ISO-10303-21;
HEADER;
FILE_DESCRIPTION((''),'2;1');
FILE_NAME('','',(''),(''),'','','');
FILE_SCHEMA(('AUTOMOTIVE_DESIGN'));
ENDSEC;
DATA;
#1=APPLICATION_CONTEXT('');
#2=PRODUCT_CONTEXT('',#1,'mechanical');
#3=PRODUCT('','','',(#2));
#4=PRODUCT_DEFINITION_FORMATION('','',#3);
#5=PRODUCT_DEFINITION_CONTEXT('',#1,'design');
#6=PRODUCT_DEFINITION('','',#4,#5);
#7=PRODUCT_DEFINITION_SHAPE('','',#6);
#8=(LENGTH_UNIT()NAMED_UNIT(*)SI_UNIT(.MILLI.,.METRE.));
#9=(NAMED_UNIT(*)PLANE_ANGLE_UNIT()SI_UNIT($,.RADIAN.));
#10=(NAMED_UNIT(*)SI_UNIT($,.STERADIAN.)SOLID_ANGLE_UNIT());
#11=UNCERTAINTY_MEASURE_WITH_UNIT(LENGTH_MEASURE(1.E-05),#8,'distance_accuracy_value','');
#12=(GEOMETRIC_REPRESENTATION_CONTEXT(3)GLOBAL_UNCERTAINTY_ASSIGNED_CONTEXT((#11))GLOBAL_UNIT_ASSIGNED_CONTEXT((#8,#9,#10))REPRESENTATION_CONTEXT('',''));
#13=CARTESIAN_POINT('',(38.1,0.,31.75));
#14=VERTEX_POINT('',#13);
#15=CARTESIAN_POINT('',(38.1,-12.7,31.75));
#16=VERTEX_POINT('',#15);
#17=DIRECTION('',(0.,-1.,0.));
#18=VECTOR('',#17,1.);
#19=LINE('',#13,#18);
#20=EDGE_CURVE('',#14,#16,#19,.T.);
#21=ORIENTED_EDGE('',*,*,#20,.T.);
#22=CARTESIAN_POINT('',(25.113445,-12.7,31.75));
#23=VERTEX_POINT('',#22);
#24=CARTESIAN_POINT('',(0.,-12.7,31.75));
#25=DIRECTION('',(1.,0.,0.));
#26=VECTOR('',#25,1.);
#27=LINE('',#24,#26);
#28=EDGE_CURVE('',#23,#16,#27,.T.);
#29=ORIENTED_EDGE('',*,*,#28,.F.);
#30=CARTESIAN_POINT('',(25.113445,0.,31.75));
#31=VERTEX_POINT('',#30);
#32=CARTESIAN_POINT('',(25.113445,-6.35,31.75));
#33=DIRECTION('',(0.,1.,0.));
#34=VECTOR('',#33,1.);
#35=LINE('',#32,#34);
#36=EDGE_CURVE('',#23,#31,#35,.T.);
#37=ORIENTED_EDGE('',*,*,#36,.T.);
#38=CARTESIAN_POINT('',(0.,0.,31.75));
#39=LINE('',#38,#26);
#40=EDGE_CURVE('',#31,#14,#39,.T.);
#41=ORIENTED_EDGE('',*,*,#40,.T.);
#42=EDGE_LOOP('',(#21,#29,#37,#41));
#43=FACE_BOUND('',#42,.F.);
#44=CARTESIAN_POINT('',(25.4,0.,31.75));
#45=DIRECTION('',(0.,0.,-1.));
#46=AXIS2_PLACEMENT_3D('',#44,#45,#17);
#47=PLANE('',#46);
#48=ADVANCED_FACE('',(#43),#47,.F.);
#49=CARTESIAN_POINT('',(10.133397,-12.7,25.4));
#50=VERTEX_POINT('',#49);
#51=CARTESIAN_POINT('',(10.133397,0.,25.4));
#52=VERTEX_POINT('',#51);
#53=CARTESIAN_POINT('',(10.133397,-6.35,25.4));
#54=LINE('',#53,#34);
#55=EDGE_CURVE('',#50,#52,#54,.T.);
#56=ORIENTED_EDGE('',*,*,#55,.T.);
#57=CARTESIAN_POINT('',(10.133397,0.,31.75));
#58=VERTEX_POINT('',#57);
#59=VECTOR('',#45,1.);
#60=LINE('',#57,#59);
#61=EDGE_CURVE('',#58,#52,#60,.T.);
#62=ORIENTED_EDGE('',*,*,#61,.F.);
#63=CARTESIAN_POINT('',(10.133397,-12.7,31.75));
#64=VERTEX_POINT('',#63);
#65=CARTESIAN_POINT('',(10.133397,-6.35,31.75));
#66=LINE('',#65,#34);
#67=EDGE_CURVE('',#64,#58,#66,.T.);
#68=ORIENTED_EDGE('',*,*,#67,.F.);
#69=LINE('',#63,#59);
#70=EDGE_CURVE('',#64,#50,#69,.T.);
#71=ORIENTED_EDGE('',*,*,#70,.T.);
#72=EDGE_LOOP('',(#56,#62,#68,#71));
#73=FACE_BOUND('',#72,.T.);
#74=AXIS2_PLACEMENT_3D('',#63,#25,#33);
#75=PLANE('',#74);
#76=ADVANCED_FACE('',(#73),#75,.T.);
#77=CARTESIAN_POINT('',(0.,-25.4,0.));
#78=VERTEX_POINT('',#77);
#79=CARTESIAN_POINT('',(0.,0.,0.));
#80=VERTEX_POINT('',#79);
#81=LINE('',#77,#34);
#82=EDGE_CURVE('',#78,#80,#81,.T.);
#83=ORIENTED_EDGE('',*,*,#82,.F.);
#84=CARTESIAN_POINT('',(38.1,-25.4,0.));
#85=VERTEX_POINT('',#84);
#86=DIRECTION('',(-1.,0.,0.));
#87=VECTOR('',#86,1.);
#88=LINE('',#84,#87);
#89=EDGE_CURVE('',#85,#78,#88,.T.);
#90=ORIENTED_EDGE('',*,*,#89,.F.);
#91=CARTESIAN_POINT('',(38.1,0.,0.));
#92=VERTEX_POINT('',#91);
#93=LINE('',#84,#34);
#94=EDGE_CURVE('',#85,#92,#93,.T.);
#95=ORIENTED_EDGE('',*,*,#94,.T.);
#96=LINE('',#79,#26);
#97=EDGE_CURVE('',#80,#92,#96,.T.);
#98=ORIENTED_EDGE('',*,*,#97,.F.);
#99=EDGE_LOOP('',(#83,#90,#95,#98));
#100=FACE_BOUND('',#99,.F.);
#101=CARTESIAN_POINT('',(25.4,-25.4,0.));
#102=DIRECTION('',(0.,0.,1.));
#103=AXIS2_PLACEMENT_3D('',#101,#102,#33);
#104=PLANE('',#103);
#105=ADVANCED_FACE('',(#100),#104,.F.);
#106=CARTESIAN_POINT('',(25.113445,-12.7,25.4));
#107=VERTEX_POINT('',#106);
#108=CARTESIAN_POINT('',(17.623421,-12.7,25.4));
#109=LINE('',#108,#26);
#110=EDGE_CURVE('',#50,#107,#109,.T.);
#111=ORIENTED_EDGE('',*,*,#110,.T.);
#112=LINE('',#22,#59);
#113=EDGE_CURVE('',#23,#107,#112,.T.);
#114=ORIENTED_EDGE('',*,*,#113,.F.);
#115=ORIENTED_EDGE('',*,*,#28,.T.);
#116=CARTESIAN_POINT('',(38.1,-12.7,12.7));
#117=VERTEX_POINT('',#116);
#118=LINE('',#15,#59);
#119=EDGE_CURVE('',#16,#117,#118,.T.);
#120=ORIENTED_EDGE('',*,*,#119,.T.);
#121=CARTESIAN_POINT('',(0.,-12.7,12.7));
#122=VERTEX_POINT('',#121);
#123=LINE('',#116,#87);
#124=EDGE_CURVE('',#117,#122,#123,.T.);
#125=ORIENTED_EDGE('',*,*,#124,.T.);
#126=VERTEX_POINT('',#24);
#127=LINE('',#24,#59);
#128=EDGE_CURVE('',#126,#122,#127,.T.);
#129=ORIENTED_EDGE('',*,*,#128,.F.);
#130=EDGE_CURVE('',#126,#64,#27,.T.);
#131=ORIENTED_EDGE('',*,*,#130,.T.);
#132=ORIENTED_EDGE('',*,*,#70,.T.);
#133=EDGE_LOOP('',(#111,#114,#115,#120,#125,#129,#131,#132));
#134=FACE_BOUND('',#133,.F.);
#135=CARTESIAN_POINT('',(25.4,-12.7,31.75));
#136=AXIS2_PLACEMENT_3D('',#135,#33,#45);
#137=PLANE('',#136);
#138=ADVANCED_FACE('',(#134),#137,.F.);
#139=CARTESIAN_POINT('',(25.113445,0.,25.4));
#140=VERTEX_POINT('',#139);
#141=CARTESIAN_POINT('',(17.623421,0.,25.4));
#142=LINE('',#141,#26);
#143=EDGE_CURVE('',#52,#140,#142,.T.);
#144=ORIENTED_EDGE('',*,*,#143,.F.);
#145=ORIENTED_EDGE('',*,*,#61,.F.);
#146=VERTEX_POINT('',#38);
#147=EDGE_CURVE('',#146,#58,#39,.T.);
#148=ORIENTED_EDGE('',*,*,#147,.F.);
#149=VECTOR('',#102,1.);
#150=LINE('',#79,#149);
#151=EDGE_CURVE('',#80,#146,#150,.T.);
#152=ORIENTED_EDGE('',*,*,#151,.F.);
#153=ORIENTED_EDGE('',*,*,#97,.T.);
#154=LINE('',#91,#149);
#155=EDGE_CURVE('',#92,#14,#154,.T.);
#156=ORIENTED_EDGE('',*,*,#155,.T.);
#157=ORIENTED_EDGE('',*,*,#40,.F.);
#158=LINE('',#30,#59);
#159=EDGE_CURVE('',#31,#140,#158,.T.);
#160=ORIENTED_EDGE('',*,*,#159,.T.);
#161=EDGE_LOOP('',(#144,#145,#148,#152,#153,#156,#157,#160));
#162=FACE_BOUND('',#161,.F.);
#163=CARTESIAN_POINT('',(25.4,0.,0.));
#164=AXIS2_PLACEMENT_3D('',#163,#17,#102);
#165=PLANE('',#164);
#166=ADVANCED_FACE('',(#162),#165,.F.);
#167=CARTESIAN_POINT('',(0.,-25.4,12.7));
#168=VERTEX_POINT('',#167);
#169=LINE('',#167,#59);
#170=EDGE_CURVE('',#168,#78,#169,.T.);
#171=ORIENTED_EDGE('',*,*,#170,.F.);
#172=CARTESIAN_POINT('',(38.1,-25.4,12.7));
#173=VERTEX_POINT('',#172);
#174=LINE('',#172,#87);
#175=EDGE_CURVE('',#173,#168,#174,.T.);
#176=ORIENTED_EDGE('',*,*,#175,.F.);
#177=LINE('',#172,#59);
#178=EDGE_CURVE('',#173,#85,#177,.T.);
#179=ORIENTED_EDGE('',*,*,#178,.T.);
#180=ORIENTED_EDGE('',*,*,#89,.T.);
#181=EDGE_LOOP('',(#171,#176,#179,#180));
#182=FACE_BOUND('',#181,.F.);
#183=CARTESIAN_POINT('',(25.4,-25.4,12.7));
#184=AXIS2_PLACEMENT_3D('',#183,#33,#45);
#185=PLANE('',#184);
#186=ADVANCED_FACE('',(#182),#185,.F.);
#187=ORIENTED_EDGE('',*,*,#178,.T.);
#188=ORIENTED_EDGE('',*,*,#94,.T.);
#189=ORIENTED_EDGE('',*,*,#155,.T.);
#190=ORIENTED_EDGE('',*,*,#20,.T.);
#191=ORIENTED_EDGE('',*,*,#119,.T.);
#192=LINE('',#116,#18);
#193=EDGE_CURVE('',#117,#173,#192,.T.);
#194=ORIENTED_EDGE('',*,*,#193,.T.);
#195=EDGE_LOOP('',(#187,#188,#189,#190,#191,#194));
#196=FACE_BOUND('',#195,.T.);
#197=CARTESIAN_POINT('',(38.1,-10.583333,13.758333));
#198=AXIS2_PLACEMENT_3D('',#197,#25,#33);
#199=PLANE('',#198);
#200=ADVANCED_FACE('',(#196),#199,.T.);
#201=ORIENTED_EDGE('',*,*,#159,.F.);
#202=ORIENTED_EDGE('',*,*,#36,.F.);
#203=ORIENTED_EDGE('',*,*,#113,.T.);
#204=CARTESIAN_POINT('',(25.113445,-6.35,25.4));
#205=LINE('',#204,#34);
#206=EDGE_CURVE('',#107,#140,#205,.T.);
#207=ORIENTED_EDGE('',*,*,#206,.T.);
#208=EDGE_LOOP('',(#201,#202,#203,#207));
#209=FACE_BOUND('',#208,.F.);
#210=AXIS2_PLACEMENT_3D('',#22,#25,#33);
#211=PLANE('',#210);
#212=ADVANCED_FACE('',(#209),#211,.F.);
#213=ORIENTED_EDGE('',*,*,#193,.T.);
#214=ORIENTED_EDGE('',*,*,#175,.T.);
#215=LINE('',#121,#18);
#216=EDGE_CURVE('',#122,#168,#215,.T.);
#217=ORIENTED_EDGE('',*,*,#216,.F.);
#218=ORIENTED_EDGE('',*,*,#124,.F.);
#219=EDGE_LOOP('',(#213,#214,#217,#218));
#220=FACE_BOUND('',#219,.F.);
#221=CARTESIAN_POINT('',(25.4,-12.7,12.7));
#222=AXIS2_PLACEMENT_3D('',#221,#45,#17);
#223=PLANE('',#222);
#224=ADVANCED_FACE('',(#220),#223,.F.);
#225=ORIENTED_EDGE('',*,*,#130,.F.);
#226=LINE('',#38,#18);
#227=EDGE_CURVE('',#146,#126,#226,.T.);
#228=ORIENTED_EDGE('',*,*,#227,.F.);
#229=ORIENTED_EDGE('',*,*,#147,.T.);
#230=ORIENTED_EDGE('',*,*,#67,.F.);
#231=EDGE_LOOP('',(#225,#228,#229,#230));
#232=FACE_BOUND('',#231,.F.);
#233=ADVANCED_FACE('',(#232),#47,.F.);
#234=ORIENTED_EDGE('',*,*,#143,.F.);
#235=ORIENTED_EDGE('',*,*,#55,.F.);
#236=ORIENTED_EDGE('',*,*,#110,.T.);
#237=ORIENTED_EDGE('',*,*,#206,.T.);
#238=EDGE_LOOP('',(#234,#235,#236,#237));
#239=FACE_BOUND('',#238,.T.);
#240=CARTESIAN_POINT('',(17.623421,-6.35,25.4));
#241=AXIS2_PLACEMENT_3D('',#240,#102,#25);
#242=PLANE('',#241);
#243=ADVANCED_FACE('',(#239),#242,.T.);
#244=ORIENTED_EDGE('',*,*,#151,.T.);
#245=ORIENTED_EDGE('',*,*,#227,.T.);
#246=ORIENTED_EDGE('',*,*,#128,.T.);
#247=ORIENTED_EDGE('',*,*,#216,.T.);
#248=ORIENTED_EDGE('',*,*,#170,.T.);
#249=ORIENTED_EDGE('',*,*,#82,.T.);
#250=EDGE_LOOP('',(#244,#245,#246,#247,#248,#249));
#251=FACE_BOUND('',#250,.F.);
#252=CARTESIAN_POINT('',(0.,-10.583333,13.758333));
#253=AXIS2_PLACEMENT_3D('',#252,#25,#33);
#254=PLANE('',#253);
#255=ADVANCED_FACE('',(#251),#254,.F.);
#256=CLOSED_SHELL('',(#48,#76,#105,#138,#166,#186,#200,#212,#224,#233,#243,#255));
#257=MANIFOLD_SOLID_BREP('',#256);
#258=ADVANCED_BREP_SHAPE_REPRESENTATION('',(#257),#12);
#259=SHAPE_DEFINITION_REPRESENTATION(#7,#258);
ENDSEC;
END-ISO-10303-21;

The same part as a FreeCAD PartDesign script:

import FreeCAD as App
import Part
import Sketcher
from FreeCAD import Vector
Q = App.Units.Quantity


def add_polygon(sketch, points):
    """Adds a closed chain of lines whose ends are joined by coincident constraints."""
    first, n = sketch.GeometryCount, len(points)
    for a, b in zip(points, points[1:] + points[:1]):
        sketch.addGeometry(Part.LineSegment(App.Vector(*a, 0), App.Vector(*b, 0)), False)
    for i in range(n):
        sketch.addConstraint(Sketcher.Constraint("Coincident", first + i, 2, first + (i + 1) % n, 1))

doc = App.newDocument("Part")
body = doc.addObject("PartDesign::Body", "Body")

# Sketch on YZ plane
sketch1 = body.newObject("Sketcher::SketchObject", "Sketch")
sketch1.AttachmentSupport = (doc.getObject("YZ_Plane"), [""])
sketch1.MapMode = "FlatFace"
add_polygon(sketch1, [(-25.4, 0), (0, 0), (0, 31.75), (-12.7, 31.75), (-12.7, 12.7), (-25.4, 12.7)])  # lines 0-5
sketch1.addConstraint(Sketcher.Constraint("Horizontal", 0))
sketch1.addConstraint(Sketcher.Constraint("Vertical", 1))
sketch1.addConstraint(Sketcher.Constraint("Horizontal", 2))
sketch1.addConstraint(Sketcher.Constraint("Vertical", 3))
sketch1.addConstraint(Sketcher.Constraint("Horizontal", 4))
sketch1.addConstraint(Sketcher.Constraint("Vertical", 5))
sketch1.addConstraint(Sketcher.Constraint("Coincident", 0, 2, -1, 1))
sketch1.addConstraint(Sketcher.Constraint("Equal", 2, 4))
sketch1.addConstraint(Sketcher.Constraint("Equal", 4, 5))
sketch1.addConstraint(Sketcher.Constraint("DistanceX", 0, 1, 0, 2, Q("1 in")))
sketch1.addConstraint(Sketcher.Constraint("DistanceY", 1, 1, 1, 2, Q("1.25 in")))
pad1 = body.newObject("PartDesign::Pad", "Pad")
pad1.Profile = sketch1
pad1.Length = Q("1 in")

# Sketch on YZ plane
sketch2 = body.newObject("Sketcher::SketchObject", "Sketch001")
sketch2.AttachmentSupport = (doc.getObject("YZ_Plane"), [""])
sketch2.MapMode = "FlatFace"
sketch2.AttachmentOffset = App.Placement(Vector(0, 0, 1 * 25.4), App.Rotation())
add_polygon(sketch2, [(-25.4, 0), (0, 0), (0, 31.75), (-12.7, 31.75), (-12.7, 12.7), (-25.4, 12.7)])  # lines 0-5
sketch2.addConstraint(Sketcher.Constraint("Horizontal", 0))
sketch2.addConstraint(Sketcher.Constraint("Vertical", 1))
sketch2.addConstraint(Sketcher.Constraint("Horizontal", 2))
sketch2.addConstraint(Sketcher.Constraint("Vertical", 3))
sketch2.addConstraint(Sketcher.Constraint("Horizontal", 4))
sketch2.addConstraint(Sketcher.Constraint("Vertical", 5))
sketch2.addConstraint(Sketcher.Constraint("Coincident", 0, 2, -1, 1))
sketch2.addConstraint(Sketcher.Constraint("Equal", 2, 4))
sketch2.addConstraint(Sketcher.Constraint("Equal", 4, 5))
sketch2.addConstraint(Sketcher.Constraint("DistanceX", 0, 1, 0, 2, Q("1 in")))
sketch2.addConstraint(Sketcher.Constraint("DistanceY", 1, 1, 1, 2, Q("1.25 in")))
pad2 = body.newObject("PartDesign::Pad", "Pad001")
pad2.Profile = sketch2
pad2.Length = Q("0.5 in")

# Sketch on XY plane
sketch3 = body.newObject("Sketcher::SketchObject", "Sketch002")
sketch3.AttachmentSupport = (doc.getObject("XY_Plane"), [""])
sketch3.MapMode = "FlatFace"
sketch3.AttachmentOffset = App.Placement(Vector(0, 0, 1.25 * 25.4), App.Rotation())
add_polygon(sketch3, [(10.133397, 0), (10.133397, -12.7), (25.113445, -12.7), (25.113445, 0)])  # lines 0-3
sketch3.addConstraint(Sketcher.Constraint("Vertical", 0))
sketch3.addConstraint(Sketcher.Constraint("Horizontal", 1))
sketch3.addConstraint(Sketcher.Constraint("Vertical", 2))
sketch3.addConstraint(Sketcher.Constraint("Horizontal", 3))
sketch3.addConstraint(Sketcher.Constraint("PointOnObject", 2, 2, -1))
sketch3.addConstraint(Sketcher.Constraint("DistanceY", 0, 2, 0, 1, Q("0.5 in")))
sketch3.addConstraint(Sketcher.Constraint("DistanceX", 1, 1, 1, 2, 14.980048))
sketch3.addConstraint(Sketcher.Constraint("DistanceX", -1, 1, 0, 2, 10.133397))
pocket1 = body.newObject("PartDesign::Pocket", "Pocket")
pocket1.Profile = sketch3
pocket1.Length = Q("0.25 in")

doc.recompute()
